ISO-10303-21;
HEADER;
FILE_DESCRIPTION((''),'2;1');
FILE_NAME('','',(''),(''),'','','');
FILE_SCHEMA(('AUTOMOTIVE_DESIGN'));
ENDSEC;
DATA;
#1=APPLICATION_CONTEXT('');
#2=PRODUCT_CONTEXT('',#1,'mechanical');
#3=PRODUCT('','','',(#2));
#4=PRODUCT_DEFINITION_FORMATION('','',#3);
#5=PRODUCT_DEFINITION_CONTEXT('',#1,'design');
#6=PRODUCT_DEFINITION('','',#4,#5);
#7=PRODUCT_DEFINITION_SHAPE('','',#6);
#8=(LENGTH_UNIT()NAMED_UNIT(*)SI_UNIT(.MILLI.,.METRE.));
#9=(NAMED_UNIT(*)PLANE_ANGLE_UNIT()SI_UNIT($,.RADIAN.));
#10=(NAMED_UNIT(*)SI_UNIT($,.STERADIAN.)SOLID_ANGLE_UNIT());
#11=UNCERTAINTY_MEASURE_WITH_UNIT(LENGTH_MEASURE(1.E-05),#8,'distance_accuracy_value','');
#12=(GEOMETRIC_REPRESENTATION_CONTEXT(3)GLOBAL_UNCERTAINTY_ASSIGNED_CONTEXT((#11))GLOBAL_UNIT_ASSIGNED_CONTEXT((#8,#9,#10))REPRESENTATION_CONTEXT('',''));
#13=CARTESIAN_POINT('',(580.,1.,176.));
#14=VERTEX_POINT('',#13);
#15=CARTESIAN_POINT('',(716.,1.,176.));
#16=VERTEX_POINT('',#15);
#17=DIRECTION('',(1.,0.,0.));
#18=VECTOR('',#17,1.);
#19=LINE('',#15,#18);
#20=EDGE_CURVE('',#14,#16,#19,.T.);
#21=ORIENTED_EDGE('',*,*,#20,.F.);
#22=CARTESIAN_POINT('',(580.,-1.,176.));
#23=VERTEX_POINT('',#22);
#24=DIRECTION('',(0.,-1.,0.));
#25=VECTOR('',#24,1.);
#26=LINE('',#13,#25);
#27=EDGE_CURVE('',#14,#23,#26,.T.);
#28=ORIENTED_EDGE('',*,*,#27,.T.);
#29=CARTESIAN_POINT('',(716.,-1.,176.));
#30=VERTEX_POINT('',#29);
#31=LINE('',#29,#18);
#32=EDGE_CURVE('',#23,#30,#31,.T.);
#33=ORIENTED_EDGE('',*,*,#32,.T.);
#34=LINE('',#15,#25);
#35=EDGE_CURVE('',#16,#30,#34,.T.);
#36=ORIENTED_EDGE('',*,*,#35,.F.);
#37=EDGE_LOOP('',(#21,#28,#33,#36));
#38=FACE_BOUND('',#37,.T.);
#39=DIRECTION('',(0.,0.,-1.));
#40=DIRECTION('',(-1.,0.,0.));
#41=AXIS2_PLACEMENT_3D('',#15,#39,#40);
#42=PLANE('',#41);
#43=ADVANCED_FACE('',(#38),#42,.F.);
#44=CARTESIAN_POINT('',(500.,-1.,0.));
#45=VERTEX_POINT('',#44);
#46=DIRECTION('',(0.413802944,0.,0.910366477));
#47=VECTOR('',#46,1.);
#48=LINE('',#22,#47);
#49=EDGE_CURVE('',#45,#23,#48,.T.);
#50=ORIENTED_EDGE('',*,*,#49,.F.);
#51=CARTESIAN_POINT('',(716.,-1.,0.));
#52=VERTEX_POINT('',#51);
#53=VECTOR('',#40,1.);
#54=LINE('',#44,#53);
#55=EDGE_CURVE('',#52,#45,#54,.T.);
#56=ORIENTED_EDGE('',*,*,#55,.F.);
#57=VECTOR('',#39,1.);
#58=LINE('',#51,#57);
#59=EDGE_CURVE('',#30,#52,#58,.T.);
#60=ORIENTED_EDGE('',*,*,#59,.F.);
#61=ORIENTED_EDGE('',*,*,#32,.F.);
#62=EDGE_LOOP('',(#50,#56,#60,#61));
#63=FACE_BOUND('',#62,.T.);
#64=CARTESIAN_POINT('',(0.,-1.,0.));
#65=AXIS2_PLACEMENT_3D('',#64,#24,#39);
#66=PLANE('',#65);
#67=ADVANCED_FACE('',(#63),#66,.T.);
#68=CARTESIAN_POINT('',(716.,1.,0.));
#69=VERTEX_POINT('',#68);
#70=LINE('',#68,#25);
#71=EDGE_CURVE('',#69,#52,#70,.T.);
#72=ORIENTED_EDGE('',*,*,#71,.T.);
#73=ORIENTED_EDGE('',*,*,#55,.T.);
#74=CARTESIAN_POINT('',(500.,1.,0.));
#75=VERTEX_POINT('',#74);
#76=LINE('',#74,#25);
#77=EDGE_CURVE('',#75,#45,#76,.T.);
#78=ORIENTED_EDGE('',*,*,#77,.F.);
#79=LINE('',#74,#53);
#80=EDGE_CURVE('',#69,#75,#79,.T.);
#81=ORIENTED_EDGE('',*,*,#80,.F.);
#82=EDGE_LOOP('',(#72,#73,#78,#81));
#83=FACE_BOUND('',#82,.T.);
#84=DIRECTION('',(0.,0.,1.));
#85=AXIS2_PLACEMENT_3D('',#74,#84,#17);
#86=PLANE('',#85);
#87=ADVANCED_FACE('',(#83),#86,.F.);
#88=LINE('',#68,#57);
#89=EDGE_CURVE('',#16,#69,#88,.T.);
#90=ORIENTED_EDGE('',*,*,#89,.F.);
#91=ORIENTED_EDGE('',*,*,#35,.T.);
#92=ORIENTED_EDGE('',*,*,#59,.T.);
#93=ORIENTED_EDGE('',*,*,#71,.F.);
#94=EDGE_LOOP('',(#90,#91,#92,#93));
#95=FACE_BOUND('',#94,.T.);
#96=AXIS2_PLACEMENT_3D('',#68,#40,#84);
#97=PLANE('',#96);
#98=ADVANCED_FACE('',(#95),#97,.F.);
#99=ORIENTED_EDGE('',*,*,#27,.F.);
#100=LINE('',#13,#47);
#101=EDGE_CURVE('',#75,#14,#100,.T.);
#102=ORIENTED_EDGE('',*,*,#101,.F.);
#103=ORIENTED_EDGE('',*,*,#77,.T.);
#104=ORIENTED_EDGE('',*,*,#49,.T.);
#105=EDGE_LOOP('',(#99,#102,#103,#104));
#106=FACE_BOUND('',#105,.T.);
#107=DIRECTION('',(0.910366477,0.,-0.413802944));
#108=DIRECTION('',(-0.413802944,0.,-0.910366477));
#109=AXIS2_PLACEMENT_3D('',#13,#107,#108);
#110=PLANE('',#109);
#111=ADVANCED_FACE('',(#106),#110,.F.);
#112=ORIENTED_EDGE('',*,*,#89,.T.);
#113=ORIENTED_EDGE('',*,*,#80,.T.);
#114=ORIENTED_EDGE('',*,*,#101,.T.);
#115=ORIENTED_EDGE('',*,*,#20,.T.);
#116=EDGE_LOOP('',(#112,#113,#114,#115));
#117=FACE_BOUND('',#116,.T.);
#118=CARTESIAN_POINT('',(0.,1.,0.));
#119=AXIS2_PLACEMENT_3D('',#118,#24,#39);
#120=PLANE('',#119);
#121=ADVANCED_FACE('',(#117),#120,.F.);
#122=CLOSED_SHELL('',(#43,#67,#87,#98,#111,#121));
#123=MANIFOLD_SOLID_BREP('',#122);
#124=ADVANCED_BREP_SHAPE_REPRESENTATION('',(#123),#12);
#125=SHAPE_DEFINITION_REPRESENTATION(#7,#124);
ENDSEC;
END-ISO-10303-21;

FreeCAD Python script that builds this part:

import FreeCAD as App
import Part
import Sketcher

V = App.Vector

doc = App.newDocument("Part")
body = doc.addObject("PartDesign::Body", "Body")

# Sketch on XZ plane
sketch1 = doc.addObject("Sketcher::SketchObject", "Sketch")
body.addObject(sketch1)
sketch1.AttachmentSupport = (doc.XZ_Plane, [""])
sketch1.MapMode = "FlatFace"
sketch1.addGeometry([
    Part.LineSegment(V(716, 0, 0), V(500, 0, 0)),
    Part.LineSegment(V(500, 0, 0), V(580, 176, 0)),
    Part.LineSegment(V(580, 176, 0), V(716, 176, 0)),
    Part.LineSegment(V(716, 176, 0), V(716, 0, 0)),
], False)
sketch1.addConstraint([
    Sketcher.Constraint("Coincident", 0, 2, 1, 1),
    Sketcher.Constraint("Coincident", 1, 2, 2, 1),
    Sketcher.Constraint("Coincident", 2, 2, 3, 1),
    Sketcher.Constraint("Coincident", 3, 2, 0, 1),
    Sketcher.Constraint("Horizontal", 0),
    Sketcher.Constraint("Horizontal", 2),
    Sketcher.Constraint("Vertical", 3),
    Sketcher.Constraint("PointOnObject", 0, 2, -1),
    Sketcher.Constraint("DistanceX", 0, 2, 0, 1, 216.0),
    Sketcher.Constraint("DistanceX", 2, 1, 2, 2, 136.0),
    Sketcher.Constraint("DistanceY", 3, 2, 3, 1, 176.0),
    Sketcher.Constraint("DistanceX", -1, 1, 0, 2, 500.0),
])
pad1 = doc.addObject("PartDesign::Pad", "Pad")
body.addObject(pad1)
pad1.Profile = sketch1
pad1.Length = 2
pad1.Midplane = True

doc.recompute()
